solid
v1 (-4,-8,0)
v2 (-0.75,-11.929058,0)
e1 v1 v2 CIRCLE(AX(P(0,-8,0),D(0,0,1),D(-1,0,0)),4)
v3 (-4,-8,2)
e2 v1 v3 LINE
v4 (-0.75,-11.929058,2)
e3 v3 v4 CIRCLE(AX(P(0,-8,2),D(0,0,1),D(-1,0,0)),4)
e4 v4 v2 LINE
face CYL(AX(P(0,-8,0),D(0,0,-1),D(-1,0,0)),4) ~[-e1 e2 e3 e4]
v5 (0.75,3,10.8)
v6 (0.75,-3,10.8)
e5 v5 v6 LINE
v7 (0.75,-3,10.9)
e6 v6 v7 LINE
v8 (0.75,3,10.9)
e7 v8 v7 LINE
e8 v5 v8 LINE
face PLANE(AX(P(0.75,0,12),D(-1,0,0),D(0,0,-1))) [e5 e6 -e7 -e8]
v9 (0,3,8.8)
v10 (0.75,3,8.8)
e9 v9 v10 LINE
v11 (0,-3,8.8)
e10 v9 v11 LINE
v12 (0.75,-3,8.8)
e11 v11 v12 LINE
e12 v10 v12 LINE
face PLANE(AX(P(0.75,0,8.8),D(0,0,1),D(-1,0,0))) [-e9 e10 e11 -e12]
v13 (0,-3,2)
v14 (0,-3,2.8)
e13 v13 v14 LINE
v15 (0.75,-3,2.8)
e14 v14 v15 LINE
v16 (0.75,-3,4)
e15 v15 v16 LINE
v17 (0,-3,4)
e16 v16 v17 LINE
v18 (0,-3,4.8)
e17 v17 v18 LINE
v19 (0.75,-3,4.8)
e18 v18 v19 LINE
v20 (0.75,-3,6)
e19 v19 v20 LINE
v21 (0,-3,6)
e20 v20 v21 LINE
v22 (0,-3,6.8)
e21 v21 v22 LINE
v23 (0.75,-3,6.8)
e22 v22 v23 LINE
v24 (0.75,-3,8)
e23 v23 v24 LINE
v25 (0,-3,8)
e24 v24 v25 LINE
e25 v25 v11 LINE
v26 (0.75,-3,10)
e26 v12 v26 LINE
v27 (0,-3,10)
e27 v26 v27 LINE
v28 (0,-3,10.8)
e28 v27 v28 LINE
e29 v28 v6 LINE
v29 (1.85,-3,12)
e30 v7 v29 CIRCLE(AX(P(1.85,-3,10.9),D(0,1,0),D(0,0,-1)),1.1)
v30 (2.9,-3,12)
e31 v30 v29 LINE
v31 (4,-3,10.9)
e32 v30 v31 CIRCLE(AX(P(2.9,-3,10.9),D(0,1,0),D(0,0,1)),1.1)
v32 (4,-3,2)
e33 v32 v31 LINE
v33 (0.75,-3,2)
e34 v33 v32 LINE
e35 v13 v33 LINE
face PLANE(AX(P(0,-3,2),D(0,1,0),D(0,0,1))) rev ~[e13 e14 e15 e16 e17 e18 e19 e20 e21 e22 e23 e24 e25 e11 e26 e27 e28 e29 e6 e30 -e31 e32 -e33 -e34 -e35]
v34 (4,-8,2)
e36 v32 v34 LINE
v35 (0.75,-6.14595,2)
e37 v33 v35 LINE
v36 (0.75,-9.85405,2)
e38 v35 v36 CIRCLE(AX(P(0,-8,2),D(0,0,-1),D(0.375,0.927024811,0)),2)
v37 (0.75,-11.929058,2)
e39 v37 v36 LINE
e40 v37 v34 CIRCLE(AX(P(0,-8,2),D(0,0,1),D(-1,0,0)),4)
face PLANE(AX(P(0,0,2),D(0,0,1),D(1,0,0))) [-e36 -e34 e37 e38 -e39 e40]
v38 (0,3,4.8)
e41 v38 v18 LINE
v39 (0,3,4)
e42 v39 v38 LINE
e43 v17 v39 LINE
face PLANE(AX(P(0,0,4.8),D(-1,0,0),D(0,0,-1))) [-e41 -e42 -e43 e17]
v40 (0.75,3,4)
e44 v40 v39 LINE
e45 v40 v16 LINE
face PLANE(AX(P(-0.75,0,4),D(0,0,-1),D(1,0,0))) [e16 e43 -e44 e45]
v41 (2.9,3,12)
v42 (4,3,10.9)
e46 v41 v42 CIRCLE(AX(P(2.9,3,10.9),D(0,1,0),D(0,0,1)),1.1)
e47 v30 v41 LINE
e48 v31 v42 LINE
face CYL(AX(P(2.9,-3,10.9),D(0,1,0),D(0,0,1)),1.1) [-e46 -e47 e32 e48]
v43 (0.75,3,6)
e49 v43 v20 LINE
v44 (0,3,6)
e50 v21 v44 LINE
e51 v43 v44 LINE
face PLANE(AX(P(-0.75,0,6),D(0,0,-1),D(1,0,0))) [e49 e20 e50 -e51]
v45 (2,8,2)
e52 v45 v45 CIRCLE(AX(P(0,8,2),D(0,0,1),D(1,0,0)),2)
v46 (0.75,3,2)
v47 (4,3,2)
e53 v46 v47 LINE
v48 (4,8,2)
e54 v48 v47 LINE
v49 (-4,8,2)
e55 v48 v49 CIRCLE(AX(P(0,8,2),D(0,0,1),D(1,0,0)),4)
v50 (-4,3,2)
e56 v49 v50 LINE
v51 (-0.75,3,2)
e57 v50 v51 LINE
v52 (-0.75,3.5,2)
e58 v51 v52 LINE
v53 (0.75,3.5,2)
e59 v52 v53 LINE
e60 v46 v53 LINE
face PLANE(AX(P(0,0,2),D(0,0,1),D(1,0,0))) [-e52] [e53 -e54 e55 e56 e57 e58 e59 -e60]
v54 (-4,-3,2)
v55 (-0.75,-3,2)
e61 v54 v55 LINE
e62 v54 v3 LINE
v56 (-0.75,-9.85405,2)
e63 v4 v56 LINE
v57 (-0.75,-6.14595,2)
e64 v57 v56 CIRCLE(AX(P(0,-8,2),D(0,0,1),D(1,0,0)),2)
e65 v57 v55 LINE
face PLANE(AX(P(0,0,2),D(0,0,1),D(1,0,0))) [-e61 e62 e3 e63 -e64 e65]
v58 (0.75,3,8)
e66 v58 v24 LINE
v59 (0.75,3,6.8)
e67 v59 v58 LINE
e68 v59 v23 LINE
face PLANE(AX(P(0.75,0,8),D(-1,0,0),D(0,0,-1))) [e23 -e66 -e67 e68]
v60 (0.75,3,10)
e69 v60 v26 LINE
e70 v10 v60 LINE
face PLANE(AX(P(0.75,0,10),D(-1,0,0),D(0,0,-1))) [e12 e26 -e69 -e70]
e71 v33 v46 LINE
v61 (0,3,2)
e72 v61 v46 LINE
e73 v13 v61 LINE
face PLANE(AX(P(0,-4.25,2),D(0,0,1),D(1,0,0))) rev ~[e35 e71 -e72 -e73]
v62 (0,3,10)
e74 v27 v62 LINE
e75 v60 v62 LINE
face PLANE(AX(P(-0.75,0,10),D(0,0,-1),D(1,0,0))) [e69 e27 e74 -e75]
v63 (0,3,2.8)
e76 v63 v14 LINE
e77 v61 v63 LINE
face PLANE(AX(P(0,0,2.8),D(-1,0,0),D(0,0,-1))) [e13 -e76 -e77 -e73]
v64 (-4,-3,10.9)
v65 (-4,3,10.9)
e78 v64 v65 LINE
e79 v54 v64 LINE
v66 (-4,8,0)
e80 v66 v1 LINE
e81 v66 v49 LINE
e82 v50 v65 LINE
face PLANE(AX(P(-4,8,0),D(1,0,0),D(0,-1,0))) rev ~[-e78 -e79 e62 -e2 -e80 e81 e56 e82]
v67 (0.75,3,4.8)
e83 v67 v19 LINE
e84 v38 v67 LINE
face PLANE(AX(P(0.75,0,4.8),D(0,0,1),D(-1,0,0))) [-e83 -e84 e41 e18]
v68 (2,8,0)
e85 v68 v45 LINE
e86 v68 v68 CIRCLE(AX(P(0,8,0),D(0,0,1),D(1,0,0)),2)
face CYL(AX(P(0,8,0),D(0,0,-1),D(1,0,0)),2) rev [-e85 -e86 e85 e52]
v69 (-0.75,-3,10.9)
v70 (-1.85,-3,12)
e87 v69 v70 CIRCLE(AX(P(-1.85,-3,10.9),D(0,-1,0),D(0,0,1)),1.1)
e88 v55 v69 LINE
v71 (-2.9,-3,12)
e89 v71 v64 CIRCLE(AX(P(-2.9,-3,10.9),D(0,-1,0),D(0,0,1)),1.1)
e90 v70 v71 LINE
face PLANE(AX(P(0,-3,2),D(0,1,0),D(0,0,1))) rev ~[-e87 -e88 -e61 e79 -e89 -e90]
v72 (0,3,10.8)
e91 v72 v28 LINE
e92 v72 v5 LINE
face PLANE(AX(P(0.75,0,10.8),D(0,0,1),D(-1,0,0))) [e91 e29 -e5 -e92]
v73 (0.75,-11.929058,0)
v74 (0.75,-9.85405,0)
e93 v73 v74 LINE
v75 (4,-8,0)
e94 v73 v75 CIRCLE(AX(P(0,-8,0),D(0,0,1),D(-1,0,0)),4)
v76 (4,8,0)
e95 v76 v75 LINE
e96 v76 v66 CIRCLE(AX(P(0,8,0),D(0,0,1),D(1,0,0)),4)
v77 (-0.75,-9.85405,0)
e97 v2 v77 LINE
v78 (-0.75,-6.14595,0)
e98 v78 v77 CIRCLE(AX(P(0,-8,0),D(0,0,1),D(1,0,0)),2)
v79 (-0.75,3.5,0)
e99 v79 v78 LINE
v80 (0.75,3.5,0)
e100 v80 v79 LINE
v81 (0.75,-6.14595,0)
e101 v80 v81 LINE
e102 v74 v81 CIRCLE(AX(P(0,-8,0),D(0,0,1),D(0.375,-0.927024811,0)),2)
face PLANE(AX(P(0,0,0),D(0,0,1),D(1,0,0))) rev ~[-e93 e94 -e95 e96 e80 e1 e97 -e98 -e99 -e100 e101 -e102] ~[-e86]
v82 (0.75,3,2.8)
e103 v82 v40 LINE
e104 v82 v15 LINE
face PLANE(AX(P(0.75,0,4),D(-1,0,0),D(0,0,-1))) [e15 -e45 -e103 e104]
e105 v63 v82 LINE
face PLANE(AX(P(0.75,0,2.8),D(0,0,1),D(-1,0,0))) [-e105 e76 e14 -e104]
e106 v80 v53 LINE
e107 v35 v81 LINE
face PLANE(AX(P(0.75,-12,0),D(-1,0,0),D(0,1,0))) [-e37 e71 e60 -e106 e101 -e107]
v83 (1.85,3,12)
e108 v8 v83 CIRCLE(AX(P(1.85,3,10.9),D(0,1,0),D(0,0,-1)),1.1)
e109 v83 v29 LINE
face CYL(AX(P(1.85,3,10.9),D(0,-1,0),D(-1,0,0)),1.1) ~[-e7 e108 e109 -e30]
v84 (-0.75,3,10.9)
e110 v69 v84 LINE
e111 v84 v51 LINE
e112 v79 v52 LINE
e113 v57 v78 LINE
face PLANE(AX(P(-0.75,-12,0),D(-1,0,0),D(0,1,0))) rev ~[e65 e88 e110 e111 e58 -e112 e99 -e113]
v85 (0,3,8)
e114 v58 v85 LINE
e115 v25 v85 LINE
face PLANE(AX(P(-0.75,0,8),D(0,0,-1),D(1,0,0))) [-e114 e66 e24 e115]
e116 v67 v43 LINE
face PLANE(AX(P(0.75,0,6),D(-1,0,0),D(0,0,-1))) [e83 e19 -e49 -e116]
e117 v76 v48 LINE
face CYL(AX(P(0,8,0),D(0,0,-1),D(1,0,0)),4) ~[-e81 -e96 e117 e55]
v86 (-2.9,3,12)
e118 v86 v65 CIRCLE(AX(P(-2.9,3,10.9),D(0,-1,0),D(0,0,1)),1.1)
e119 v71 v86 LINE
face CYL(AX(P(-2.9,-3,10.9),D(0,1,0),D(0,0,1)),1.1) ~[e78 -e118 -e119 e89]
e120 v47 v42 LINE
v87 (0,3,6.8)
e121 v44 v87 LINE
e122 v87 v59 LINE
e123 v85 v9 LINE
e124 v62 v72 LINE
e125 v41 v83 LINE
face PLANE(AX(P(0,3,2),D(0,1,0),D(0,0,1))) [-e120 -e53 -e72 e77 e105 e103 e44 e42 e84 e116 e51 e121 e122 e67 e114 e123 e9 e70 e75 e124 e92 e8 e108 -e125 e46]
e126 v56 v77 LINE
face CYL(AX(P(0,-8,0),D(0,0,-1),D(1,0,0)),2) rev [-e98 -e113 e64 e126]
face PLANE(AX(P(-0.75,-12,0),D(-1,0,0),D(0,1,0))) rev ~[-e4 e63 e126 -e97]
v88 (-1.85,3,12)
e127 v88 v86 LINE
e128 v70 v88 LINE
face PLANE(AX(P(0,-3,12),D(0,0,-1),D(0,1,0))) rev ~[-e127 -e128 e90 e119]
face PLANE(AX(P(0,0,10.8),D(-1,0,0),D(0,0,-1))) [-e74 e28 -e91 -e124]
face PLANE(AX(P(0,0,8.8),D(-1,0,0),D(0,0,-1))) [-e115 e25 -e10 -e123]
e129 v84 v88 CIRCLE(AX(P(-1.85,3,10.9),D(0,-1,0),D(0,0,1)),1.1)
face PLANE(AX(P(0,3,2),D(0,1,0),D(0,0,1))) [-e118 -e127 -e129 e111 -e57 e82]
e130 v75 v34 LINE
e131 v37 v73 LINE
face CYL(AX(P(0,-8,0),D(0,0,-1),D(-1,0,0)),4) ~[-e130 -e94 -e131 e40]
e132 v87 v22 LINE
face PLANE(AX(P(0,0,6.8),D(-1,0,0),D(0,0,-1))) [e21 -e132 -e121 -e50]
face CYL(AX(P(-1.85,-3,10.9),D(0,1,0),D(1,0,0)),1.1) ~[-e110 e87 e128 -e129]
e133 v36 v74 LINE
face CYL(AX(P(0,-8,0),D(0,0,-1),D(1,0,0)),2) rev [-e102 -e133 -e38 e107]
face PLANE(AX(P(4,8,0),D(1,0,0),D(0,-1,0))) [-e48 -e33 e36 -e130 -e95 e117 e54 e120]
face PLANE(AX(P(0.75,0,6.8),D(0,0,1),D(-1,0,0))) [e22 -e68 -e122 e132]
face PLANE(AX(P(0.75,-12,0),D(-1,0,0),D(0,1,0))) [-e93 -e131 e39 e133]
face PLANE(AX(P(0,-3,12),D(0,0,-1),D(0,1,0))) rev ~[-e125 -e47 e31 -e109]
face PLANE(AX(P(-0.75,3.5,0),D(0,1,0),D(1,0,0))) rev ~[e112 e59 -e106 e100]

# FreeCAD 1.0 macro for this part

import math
import FreeCAD as App
import Part
import Sketcher

V = App.Vector
Q = App.Units.Quantity


def edges_at(feature, points):
    """Names of the edges that pass closest to the given points."""
    edges = feature.Shape.Edges
    near = lambda p: min(range(len(edges)), key=lambda i: edges[i].distToShape(Part.Vertex(*p))[0])
    return sorted({f"Edge{near(p) + 1}" for p in points})


def add_polygon(sketch, points):
    """Adds a closed chain of lines whose ends are joined by coincident constraints."""
    first, n = sketch.GeometryCount, len(points)
    for a, b in zip(points, points[1:] + points[:1]):
        sketch.addGeometry(Part.LineSegment(App.Vector(*a, 0), App.Vector(*b, 0)), False)
    for i in range(n):
        sketch.addConstraint(Sketcher.Constraint("Coincident", first + i, 2, first + (i + 1) % n, 1))

doc = App.newDocument("Part")
body = doc.addObject("PartDesign::Body", "Body")

sketch1 = doc.addObject("Sketcher::SketchObject", "Sketch")
body.addObject(sketch1)
sketch1.AttachmentSupport = (doc.XY_Plane, [""])
sketch1.MapMode = "FlatFace"
sketch1.addGeometry(Part.ArcOfCircle(Part.Circle(V(0, 8, 0), V(0, 0, 1), 4), math.radians(0), math.radians(180)), False)
sketch1.addGeometry(Part.LineSegment(V(-4, 8, 0), V(-4, -8, 0)), False)
sketch1.addGeometry(Part.ArcOfCircle(Part.Circle(V(0, -8, 0), V(0, 0, 1), 4), math.radians(180), math.radians(360)), False)
sketch1.addGeometry(Part.LineSegment(V(4, -8, 0), V(4, 8, 0)), False)
sketch1.addGeometry(Part.Circle(V(0, -8, 0), V(0, 0, 1), 2), False)
sketch1.addGeometry(Part.Circle(V(0, 8, 0), V(0, 0, 1), 2), False)
sketch1.addConstraint(Sketcher.Constraint("Tangent", 0, 2, 1, 1))
sketch1.addConstraint(Sketcher.Constraint("Tangent", 1, 2, 2, 1))
sketch1.addConstraint(Sketcher.Constraint("Tangent", 2, 2, 3, 1))
sketch1.addConstraint(Sketcher.Constraint("Tangent", 3, 2, 0, 1))
sketch1.addConstraint(Sketcher.Constraint("Vertical", 1))
sketch1.addConstraint(Sketcher.Constraint("Vertical", 3))
sketch1.addConstraint(Sketcher.Constraint("Coincident", 4, 3, 2, 3))
sketch1.addConstraint(Sketcher.Constraint("Coincident", 5, 3, 0, 3))
sketch1.addConstraint(Sketcher.Constraint("Equal", 4, 5))
sketch1.addConstraint(Sketcher.Constraint("Symmetric", 0, 3, 2, 3, -1, 1))
sketch1.addConstraint(Sketcher.Constraint("Diameter", 4, Q("4 mm")))
sketch1.addConstraint(Sketcher.Constraint("Radius", 0, Q("4 mm")))
sketch1.addConstraint(Sketcher.Constraint("DistanceY", 1, 2, 1, 1, Q("16 mm")))
pad1 = doc.addObject("PartDesign::Pad", "Pad")
body.addObject(pad1)
pad1.Profile = sketch1
pad1.Length = 2

sketch2 = doc.addObject("Sketcher::SketchObject", "Sketch001")
body.addObject(sketch2)
sketch2.AttachmentSupport = (doc.YZ_Plane, [""])
sketch2.MapMode = "FlatFace"
add_polygon(sketch2, [(-3, 12), (-3, 2), (3, 2), (3, 12)])
sketch2.addConstraint(Sketcher.Constraint("Vertical", 0))
sketch2.addConstraint(Sketcher.Constraint("Horizontal", 1))
sketch2.addConstraint(Sketcher.Constraint("Vertical", 2))
sketch2.addConstraint(Sketcher.Constraint("Horizontal", 3))
sketch2.addConstraint(Sketcher.Constraint("DistanceX", 1, 1, 1, 2, Q("6 mm")))
sketch2.addConstraint(Sketcher.Constraint("DistanceY", 0, 2, 0, 1, Q("10 mm")))
sketch2.addConstraint(Sketcher.Constraint("DistanceX", 0, 2, -1, 1, Q("3 mm")))
sketch2.addConstraint(Sketcher.Constraint("DistanceY", -1, 1, 0, 2, Q("2 mm")))
pad2 = doc.addObject("PartDesign::Pad", "Pad001")
body.addObject(pad2)
pad2.Profile = sketch2
pad2.Length = 8
pad2.Midplane = True

sketch3 = doc.addObject("Sketcher::SketchObject", "Sketch002")
body.addObject(sketch3)
sketch3.AttachmentSupport = (doc.XY_Plane, [""])
sketch3.MapMode = "FlatFace"
add_polygon(sketch3, [(-0.75, 3.5), (-0.75, -12), (0.75, -12), (0.75, 3.5)])
sketch3.addConstraint(Sketcher.Constraint("Vertical", 0))
sketch3.addConstraint(Sketcher.Constraint("Horizontal", 1))
sketch3.addConstraint(Sketcher.Constraint("Vertical", 2))
sketch3.addConstraint(Sketcher.Constraint("Horizontal", 3))
sketch3.addConstraint(Sketcher.Constraint("DistanceX", 1, 1, 1, 2, Q("1.5 mm")))
sketch3.addConstraint(Sketcher.Constraint("DistanceY", 0, 2, 0, 1, Q("15.5 mm")))
sketch3.addConstraint(Sketcher.Constraint("DistanceY", 0, 2, -1, 1, Q("12 mm")))
sketch3.addConstraint(Sketcher.Constraint("DistanceX", 0, 2, -1, 1, Q("0.75 mm")))
pocket1 = doc.addObject("PartDesign::Pocket", "Pocket")
body.addObject(pocket1)
pocket1.Profile = sketch3
pocket1.Length = 2
pocket1.Reversed = True

sketch4 = doc.addObject("Sketcher::SketchObject", "Sketch003")
body.addObject(sketch4)
sketch4.AttachmentSupport = (doc.XZ_Plane, [""])
sketch4.MapMode = "FlatFace"
add_polygon(sketch4, [(0, -2), (0, -1.2), (0.75, -1.2), (0.75, 0), (-0.75, 0), (-0.75, -2)])
sketch4.addConstraint(Sketcher.Constraint("Vertical", 0))
sketch4.addConstraint(Sketcher.Constraint("Horizontal", 1))
sketch4.addConstraint(Sketcher.Constraint("Vertical", 2))
sketch4.addConstraint(Sketcher.Constraint("Horizontal", 3))
sketch4.addConstraint(Sketcher.Constraint("Vertical", 4))
sketch4.addConstraint(Sketcher.Constraint("Horizontal", 5))
sketch4.addConstraint(Sketcher.Constraint("Symmetric", 2, 2, 3, 2, -1, 1))
sketch4.addConstraint(Sketcher.Constraint("PointOnObject", 0, 2, -2))
sketch4.addConstraint(Sketcher.Constraint("DistanceY", 4, 2, 4, 1, Q("2 mm")))
sketch4.addConstraint(Sketcher.Constraint("DistanceX", 3, 2, 3, 1, Q("1.5 mm")))
sketch4.addConstraint(Sketcher.Constraint("DistanceY", 0, 1, 0, 2, Q("0.8 mm")))
pocket2 = doc.addObject("PartDesign::Pocket", "Pocket001")
body.addObject(pocket2)
pocket2.Profile = sketch4
pocket2.Length = 7
pocket2.Midplane = True
doc.recompute()

linearpattern = doc.addObject("PartDesign::LinearPattern", "LinearPattern")
body.addObject(linearpattern)
linearpattern.Originals = [pocket2]
linearpattern.Direction = (doc.Z_Axis, [""])
linearpattern.Mode = "offset"
linearpattern.Offset = 2
linearpattern.Occurrences = 7
body.Tip = linearpattern
doc.recompute()

fillet = doc.addObject("PartDesign::Fillet", "Fillet")
body.addObject(fillet)
fillet.Base = (linearpattern, edges_at(linearpattern, [
    (4, 0, 12),
    (0.75, 0, 12),
    (-0.75, 0, 12),
    (-4, 0, 12),
]))
fillet.Radius = 1.1

doc.recompute()
